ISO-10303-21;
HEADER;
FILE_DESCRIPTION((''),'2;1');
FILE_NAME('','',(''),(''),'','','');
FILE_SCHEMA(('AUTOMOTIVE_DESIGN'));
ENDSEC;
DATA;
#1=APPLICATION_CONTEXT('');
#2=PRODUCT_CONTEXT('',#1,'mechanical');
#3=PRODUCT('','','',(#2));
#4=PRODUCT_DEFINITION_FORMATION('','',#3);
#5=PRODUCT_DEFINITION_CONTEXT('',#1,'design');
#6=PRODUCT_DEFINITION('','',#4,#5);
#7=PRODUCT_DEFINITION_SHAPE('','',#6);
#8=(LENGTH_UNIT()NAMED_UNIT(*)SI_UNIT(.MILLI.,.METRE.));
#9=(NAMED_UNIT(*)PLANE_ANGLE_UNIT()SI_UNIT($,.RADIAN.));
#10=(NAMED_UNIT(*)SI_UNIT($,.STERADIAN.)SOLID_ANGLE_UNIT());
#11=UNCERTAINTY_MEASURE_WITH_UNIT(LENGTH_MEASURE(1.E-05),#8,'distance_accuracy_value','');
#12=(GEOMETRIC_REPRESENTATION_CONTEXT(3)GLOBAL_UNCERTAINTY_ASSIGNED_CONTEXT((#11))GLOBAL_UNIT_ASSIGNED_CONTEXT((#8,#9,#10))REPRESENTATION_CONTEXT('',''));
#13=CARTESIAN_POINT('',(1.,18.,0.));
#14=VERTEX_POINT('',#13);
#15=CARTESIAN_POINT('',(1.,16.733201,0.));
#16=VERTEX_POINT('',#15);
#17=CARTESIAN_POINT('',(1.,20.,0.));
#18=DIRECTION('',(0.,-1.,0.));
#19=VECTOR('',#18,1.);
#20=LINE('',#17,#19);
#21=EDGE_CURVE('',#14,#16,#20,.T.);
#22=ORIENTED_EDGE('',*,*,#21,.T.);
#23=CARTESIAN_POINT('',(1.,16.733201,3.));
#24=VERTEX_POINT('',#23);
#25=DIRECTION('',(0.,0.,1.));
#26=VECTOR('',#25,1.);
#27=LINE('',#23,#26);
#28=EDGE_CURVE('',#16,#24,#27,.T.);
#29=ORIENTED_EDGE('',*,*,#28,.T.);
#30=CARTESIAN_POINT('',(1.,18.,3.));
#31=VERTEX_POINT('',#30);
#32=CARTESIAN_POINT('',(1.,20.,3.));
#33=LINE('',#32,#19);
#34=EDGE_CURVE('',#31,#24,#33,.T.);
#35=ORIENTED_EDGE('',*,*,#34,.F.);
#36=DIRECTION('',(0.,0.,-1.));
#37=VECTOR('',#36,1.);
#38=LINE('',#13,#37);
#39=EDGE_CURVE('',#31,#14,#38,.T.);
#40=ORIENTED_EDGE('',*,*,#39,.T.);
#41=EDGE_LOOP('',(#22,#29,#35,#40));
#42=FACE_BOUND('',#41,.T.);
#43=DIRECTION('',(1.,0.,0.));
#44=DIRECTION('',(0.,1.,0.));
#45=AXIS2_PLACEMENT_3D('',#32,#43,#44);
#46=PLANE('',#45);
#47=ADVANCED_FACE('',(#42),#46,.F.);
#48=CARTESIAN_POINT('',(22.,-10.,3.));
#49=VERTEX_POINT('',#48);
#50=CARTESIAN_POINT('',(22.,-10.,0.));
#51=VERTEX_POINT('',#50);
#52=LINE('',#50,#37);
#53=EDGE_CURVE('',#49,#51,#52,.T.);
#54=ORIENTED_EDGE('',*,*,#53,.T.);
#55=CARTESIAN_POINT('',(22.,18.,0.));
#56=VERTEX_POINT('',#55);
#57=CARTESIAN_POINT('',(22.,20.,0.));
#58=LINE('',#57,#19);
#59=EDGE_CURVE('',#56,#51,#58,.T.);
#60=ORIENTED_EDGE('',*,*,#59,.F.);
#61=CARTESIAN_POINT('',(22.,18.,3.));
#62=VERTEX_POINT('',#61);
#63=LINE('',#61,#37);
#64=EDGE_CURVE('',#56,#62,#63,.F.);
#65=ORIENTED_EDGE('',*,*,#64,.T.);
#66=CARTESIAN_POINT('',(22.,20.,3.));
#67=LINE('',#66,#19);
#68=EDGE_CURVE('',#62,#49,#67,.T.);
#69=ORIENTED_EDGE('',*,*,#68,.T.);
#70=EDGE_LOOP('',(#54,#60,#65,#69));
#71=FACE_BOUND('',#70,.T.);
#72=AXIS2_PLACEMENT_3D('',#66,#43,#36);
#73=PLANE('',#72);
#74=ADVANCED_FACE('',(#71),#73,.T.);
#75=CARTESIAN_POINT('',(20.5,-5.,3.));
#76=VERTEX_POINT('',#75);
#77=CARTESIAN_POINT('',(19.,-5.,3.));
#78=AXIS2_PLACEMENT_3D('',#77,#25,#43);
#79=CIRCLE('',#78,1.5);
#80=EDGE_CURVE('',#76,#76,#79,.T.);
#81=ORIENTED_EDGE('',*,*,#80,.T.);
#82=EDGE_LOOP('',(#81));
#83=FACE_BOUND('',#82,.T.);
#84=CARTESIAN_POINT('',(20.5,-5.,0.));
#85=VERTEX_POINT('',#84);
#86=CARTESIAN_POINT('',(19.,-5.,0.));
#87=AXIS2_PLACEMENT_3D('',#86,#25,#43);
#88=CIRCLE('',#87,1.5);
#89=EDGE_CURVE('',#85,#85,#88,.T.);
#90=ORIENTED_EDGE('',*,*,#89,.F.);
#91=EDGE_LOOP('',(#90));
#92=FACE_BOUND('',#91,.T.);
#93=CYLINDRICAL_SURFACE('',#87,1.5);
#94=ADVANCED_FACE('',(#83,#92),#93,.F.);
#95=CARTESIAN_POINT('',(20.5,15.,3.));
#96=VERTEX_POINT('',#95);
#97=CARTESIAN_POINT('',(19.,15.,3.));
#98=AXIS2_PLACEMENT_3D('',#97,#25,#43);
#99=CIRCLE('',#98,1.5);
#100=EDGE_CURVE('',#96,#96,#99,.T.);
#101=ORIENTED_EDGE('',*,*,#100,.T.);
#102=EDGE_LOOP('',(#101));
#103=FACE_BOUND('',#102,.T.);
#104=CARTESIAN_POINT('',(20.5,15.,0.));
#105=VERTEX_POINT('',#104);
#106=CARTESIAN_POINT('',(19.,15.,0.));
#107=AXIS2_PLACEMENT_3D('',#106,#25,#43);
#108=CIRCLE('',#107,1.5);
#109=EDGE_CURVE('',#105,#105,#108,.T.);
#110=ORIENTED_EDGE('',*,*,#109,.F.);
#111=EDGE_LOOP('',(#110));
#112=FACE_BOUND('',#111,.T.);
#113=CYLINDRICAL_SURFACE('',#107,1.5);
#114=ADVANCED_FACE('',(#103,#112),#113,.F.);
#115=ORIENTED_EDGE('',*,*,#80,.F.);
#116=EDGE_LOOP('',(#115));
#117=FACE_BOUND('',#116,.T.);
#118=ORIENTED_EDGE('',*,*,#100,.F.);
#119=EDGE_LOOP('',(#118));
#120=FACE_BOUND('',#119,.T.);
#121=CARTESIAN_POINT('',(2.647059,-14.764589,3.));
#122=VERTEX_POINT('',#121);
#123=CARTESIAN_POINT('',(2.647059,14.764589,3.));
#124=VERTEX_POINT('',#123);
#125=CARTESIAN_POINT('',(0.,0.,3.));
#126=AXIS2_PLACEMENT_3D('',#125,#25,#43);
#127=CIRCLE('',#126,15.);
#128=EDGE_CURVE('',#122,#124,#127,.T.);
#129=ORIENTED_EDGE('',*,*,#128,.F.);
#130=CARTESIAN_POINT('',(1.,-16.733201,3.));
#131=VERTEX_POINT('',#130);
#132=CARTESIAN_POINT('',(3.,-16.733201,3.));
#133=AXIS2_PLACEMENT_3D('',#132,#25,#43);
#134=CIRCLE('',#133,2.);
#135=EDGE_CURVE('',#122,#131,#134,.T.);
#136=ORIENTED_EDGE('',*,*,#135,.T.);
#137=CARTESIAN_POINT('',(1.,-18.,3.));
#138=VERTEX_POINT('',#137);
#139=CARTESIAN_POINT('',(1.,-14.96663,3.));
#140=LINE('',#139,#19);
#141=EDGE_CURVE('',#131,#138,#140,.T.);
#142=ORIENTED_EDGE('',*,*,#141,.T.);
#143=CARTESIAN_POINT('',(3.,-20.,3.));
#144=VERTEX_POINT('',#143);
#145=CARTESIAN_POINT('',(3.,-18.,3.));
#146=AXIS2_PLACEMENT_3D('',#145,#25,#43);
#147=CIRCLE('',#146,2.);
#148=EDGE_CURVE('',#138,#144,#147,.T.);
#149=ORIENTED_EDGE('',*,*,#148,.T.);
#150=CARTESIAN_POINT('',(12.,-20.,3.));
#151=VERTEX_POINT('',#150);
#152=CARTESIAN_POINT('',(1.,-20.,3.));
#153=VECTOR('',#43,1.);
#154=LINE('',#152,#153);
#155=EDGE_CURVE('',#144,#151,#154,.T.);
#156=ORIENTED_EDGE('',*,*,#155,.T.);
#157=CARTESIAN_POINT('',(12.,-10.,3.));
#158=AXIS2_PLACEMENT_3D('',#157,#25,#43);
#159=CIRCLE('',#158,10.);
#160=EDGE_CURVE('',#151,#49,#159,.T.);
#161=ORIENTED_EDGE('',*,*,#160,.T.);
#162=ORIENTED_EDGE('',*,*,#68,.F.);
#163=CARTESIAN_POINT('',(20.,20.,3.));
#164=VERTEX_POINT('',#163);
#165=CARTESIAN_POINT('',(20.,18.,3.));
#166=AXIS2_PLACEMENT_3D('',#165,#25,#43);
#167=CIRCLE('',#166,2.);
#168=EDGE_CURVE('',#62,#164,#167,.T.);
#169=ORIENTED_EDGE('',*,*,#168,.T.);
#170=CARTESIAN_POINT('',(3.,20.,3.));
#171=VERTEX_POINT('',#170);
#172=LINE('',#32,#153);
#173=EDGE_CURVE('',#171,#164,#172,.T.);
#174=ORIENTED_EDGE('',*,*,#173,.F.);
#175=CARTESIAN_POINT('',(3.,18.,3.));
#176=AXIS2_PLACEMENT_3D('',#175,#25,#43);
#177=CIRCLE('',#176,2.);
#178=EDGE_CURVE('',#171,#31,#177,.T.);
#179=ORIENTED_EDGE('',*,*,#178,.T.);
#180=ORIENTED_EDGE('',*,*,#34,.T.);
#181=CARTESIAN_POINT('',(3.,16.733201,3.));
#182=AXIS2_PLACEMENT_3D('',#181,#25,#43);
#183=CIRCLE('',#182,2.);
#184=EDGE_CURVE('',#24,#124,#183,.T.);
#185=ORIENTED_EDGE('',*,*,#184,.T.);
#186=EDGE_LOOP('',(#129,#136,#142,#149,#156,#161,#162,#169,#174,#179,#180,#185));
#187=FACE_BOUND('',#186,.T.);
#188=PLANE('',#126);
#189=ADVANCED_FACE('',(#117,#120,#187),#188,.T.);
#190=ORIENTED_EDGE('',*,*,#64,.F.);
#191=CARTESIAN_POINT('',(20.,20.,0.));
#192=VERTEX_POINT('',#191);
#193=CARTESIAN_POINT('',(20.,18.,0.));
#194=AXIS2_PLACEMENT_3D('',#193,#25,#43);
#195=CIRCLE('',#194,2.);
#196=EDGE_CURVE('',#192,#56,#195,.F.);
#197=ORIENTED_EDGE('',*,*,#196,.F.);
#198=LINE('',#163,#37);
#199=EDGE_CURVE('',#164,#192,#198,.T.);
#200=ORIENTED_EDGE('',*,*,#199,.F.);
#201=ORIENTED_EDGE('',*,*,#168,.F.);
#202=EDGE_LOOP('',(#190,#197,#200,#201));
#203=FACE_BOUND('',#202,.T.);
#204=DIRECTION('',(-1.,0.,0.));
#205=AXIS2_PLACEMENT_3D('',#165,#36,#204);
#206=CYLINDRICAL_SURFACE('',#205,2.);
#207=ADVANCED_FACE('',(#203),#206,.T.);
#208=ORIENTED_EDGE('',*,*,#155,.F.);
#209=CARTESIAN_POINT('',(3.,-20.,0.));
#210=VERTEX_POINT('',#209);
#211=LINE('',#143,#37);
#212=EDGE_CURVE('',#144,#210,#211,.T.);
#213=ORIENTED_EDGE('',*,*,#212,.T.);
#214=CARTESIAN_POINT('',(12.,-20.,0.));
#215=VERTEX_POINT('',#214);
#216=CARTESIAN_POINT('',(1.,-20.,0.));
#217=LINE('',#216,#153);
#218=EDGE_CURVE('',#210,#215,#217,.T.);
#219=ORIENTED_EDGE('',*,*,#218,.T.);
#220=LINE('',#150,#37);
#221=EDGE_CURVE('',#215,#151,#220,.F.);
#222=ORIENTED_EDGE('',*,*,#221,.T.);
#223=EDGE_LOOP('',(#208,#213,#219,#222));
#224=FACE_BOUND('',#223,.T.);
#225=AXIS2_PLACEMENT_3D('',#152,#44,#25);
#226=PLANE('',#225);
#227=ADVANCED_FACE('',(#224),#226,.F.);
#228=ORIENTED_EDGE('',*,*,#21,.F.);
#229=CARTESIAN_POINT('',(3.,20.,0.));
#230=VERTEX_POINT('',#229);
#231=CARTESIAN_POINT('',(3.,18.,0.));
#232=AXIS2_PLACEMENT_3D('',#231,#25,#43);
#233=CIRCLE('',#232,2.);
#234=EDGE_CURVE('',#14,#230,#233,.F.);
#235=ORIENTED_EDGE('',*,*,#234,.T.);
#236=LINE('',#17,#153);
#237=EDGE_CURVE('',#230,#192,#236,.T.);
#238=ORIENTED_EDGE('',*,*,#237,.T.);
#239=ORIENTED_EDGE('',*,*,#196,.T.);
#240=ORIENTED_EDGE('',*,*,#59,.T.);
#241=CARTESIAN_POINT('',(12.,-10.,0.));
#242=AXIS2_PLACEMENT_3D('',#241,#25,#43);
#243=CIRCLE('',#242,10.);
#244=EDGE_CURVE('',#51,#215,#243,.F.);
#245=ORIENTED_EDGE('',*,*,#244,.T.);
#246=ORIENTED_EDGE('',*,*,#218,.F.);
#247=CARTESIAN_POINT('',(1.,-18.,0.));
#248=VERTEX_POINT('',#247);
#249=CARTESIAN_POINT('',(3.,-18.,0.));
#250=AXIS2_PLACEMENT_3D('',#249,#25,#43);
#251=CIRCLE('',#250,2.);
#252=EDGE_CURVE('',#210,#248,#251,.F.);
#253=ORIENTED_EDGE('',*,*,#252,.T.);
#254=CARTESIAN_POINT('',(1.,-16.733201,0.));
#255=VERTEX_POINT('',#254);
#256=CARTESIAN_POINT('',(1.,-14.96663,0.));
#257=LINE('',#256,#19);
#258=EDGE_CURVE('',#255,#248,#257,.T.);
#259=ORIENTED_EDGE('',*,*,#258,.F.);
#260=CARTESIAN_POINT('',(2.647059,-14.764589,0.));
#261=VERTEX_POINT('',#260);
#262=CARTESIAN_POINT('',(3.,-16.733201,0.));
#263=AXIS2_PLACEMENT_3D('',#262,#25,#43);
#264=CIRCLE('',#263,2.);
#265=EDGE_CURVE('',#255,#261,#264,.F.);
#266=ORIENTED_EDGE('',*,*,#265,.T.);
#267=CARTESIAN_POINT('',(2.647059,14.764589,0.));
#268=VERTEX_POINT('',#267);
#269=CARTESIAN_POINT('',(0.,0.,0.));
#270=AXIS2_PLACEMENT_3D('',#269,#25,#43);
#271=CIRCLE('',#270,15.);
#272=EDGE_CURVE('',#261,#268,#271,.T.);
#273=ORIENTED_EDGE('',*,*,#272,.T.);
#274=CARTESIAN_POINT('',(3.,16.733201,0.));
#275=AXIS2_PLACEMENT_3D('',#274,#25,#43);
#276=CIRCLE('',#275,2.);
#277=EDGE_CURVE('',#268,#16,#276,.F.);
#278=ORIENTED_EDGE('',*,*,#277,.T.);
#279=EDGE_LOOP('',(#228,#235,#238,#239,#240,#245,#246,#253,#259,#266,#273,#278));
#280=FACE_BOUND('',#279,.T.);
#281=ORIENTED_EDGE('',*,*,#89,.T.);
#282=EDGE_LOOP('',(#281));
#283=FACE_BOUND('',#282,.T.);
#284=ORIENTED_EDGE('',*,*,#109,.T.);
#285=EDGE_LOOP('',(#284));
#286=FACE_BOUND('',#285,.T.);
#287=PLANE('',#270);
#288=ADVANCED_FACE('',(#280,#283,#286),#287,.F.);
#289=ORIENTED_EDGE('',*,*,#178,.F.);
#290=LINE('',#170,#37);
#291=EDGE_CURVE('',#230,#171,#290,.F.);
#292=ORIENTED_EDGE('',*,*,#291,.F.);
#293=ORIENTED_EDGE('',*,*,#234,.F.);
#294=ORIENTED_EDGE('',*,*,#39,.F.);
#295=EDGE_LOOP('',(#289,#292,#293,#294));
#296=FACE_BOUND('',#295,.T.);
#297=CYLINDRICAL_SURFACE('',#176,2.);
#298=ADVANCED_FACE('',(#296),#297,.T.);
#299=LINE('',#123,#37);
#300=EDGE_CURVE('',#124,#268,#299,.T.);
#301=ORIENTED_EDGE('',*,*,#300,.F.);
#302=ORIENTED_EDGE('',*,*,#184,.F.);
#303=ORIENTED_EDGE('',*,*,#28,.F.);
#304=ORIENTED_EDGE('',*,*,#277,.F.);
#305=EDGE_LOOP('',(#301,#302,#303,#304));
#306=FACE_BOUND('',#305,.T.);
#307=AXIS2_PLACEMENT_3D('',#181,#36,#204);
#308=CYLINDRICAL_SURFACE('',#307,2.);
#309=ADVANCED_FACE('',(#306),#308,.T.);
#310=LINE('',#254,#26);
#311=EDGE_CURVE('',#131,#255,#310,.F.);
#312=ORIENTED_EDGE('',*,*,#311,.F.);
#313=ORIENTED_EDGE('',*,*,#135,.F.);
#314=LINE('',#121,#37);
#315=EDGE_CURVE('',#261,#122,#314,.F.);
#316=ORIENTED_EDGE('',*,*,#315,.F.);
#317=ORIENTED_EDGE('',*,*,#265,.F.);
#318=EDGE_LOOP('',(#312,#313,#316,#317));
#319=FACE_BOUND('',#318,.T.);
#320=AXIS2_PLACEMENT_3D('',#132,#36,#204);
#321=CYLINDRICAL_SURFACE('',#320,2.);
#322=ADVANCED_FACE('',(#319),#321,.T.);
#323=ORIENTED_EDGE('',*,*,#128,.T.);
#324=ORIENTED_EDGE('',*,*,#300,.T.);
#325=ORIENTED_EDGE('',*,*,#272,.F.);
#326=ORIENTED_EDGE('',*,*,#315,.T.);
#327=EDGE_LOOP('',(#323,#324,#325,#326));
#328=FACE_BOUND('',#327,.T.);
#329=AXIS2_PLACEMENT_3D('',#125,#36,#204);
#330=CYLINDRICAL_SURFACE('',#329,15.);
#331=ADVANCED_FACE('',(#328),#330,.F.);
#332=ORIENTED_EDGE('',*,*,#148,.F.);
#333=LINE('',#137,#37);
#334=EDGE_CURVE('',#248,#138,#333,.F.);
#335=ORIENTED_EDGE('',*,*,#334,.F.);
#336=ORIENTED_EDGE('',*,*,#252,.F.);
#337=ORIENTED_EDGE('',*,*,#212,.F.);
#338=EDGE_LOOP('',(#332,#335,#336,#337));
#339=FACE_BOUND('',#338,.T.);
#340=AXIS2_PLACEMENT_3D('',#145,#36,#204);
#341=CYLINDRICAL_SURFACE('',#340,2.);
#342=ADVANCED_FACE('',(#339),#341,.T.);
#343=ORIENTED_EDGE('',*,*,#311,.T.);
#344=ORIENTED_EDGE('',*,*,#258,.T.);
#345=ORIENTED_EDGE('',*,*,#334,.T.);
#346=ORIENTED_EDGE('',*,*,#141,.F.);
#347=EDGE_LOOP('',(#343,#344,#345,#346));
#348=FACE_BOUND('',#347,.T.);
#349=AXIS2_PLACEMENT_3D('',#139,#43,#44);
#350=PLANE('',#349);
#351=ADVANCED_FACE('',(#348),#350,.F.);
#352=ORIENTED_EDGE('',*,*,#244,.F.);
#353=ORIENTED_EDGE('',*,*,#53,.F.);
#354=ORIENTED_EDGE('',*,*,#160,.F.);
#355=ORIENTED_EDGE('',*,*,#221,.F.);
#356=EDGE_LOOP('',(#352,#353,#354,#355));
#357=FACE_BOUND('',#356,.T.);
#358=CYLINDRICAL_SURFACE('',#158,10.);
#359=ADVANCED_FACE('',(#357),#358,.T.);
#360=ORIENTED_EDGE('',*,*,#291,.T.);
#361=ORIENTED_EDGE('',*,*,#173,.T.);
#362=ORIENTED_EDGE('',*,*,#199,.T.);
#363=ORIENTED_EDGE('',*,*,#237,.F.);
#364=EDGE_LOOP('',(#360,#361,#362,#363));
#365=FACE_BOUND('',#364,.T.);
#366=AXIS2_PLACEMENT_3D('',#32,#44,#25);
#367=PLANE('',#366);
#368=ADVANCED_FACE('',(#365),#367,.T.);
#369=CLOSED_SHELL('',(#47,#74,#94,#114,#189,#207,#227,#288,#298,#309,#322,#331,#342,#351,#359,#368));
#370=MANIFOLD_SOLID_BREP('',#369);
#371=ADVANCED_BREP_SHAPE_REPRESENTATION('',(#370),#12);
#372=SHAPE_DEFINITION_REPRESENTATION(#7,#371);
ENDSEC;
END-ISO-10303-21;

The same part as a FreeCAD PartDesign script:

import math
import FreeCAD as App
import Part
import Sketcher

V = App.Vector


def edges_at(feature, points):
    """Names of the edges that pass closest to the given points."""
    edges = feature.Shape.Edges
    near = lambda p: min(range(len(edges)), key=lambda i: edges[i].distToShape(Part.Vertex(*p))[0])
    return sorted({f"Edge{near(p) + 1}" for p in points})

doc = App.newDocument("Part")
body = doc.addObject("PartDesign::Body", "Body")

# Sketch on XY plane
sketch1 = doc.addObject("Sketcher::SketchObject", "Sketch")
body.addObject(sketch1)
sketch1.AttachmentSupport = (doc.XY_Plane, [""])
sketch1.MapMode = "FlatFace"
sketch1.addGeometry(Part.LineSegment(V(22, -20, 0), V(22, 20, 0)), False)
sketch1.addGeometry(Part.LineSegment(V(22, 20, 0), V(1, 20, 0)), False)
sketch1.addGeometry(Part.LineSegment(V(1, 20, 0), V(1, 15, 0)), False)
sketch1.addGeometry(Part.ArcOfCircle(Part.Circle(V(0, 0, 0), V(0, 0, 1), 15), math.radians(-86), math.radians(86)), False)
sketch1.addGeometry(Part.LineSegment(V(1, -15, 0), V(1, -20, 0)), False)
sketch1.addGeometry(Part.LineSegment(V(1, -20, 0), V(22, -20, 0)), False)
sketch1.addConstraint(Sketcher.Constraint("Coincident", 0, 2, 1, 1))
sketch1.addConstraint(Sketcher.Constraint("Coincident", 1, 2, 2, 1))
sketch1.addConstraint(Sketcher.Constraint("Coincident", 2, 2, 3, 2))
sketch1.addConstraint(Sketcher.Constraint("Coincident", 3, 1, 4, 1))
sketch1.addConstraint(Sketcher.Constraint("Coincident", 4, 2, 5, 1))
sketch1.addConstraint(Sketcher.Constraint("Coincident", 5, 2, 0, 1))
sketch1.addConstraint(Sketcher.Constraint("Vertical", 0))
sketch1.addConstraint(Sketcher.Constraint("Horizontal", 1))
sketch1.addConstraint(Sketcher.Constraint("Vertical", 2))
sketch1.addConstraint(Sketcher.Constraint("Vertical", 4))
sketch1.addConstraint(Sketcher.Constraint("Horizontal", 5))
sketch1.addConstraint(Sketcher.Constraint("Coincident", 3, 3, -1, 1))
sketch1.addConstraint(Sketcher.Constraint("Symmetric", 1, 2, 4, 2, -1))
sketch1.addConstraint(Sketcher.Constraint("Radius", 3, 15.0))
sketch1.addConstraint(Sketcher.Constraint("DistanceX", 1, 2, 1, 1, 21.0))
sketch1.addConstraint(Sketcher.Constraint("DistanceY", 0, 1, 0, 2, 40.0))
sketch1.addConstraint(Sketcher.Constraint("DistanceX", -1, 1, 0, 2, 22.0))
pad1 = doc.addObject("PartDesign::Pad", "Pad")
body.addObject(pad1)
pad1.Profile = sketch1
pad1.Length = 3

# Sketch on XY plane
sketch2 = doc.addObject("Sketcher::SketchObject", "Sketch001")
body.addObject(sketch2)
sketch2.AttachmentSupport = (doc.XY_Plane, [""])
sketch2.MapMode = "FlatFace"
sketch2.AttachmentOffset = App.Placement(V(0, 0, 3), App.Rotation())
sketch2.addGeometry(Part.Circle(V(19, 15, 0), V(0, 0, 1), 1.5), False)
sketch2.addGeometry(Part.Circle(V(19, -5, 0), V(0, 0, 1), 1.5), False)
sketch2.addConstraint(Sketcher.Constraint("Equal", 0, 1))
sketch2.addConstraint(Sketcher.Constraint("Vertical", 0, 3, 1, 3))
sketch2.addConstraint(Sketcher.Constraint("Diameter", 0, 3.0))
sketch2.addConstraint(Sketcher.Constraint("DistanceX", -1, 1, 0, 3, 19.0))
sketch2.addConstraint(Sketcher.Constraint("DistanceY", -1, 1, 0, 3, 15.0))
sketch2.addConstraint(Sketcher.Constraint("DistanceY", 1, 3, -1, 1, 5.0))
pocket1 = doc.addObject("PartDesign::Pocket", "Pocket")
body.addObject(pocket1)
pocket1.Profile = sketch2
pocket1.Type = "ThroughAll"
doc.recompute()

fillet = doc.addObject("PartDesign::Fillet", "Fillet")
body.addObject(fillet)
fillet.Base = (pocket1, edges_at(pocket1, [(22, -20, 1.5)]))
fillet.Radius = 10
doc.recompute()

fillet2 = doc.addObject("PartDesign::Fillet", "Fillet001")
body.addObject(fillet2)
fillet2.Base = (fillet, edges_at(fillet, [
    (1, 20, 1.5),
    (22, 20, 1.5),
    (1, -20, 1.5),
    (1, -14.967, 1.5),
    (1, 14.967, 1.5),
]))
fillet2.Radius = 2

doc.recompute()
